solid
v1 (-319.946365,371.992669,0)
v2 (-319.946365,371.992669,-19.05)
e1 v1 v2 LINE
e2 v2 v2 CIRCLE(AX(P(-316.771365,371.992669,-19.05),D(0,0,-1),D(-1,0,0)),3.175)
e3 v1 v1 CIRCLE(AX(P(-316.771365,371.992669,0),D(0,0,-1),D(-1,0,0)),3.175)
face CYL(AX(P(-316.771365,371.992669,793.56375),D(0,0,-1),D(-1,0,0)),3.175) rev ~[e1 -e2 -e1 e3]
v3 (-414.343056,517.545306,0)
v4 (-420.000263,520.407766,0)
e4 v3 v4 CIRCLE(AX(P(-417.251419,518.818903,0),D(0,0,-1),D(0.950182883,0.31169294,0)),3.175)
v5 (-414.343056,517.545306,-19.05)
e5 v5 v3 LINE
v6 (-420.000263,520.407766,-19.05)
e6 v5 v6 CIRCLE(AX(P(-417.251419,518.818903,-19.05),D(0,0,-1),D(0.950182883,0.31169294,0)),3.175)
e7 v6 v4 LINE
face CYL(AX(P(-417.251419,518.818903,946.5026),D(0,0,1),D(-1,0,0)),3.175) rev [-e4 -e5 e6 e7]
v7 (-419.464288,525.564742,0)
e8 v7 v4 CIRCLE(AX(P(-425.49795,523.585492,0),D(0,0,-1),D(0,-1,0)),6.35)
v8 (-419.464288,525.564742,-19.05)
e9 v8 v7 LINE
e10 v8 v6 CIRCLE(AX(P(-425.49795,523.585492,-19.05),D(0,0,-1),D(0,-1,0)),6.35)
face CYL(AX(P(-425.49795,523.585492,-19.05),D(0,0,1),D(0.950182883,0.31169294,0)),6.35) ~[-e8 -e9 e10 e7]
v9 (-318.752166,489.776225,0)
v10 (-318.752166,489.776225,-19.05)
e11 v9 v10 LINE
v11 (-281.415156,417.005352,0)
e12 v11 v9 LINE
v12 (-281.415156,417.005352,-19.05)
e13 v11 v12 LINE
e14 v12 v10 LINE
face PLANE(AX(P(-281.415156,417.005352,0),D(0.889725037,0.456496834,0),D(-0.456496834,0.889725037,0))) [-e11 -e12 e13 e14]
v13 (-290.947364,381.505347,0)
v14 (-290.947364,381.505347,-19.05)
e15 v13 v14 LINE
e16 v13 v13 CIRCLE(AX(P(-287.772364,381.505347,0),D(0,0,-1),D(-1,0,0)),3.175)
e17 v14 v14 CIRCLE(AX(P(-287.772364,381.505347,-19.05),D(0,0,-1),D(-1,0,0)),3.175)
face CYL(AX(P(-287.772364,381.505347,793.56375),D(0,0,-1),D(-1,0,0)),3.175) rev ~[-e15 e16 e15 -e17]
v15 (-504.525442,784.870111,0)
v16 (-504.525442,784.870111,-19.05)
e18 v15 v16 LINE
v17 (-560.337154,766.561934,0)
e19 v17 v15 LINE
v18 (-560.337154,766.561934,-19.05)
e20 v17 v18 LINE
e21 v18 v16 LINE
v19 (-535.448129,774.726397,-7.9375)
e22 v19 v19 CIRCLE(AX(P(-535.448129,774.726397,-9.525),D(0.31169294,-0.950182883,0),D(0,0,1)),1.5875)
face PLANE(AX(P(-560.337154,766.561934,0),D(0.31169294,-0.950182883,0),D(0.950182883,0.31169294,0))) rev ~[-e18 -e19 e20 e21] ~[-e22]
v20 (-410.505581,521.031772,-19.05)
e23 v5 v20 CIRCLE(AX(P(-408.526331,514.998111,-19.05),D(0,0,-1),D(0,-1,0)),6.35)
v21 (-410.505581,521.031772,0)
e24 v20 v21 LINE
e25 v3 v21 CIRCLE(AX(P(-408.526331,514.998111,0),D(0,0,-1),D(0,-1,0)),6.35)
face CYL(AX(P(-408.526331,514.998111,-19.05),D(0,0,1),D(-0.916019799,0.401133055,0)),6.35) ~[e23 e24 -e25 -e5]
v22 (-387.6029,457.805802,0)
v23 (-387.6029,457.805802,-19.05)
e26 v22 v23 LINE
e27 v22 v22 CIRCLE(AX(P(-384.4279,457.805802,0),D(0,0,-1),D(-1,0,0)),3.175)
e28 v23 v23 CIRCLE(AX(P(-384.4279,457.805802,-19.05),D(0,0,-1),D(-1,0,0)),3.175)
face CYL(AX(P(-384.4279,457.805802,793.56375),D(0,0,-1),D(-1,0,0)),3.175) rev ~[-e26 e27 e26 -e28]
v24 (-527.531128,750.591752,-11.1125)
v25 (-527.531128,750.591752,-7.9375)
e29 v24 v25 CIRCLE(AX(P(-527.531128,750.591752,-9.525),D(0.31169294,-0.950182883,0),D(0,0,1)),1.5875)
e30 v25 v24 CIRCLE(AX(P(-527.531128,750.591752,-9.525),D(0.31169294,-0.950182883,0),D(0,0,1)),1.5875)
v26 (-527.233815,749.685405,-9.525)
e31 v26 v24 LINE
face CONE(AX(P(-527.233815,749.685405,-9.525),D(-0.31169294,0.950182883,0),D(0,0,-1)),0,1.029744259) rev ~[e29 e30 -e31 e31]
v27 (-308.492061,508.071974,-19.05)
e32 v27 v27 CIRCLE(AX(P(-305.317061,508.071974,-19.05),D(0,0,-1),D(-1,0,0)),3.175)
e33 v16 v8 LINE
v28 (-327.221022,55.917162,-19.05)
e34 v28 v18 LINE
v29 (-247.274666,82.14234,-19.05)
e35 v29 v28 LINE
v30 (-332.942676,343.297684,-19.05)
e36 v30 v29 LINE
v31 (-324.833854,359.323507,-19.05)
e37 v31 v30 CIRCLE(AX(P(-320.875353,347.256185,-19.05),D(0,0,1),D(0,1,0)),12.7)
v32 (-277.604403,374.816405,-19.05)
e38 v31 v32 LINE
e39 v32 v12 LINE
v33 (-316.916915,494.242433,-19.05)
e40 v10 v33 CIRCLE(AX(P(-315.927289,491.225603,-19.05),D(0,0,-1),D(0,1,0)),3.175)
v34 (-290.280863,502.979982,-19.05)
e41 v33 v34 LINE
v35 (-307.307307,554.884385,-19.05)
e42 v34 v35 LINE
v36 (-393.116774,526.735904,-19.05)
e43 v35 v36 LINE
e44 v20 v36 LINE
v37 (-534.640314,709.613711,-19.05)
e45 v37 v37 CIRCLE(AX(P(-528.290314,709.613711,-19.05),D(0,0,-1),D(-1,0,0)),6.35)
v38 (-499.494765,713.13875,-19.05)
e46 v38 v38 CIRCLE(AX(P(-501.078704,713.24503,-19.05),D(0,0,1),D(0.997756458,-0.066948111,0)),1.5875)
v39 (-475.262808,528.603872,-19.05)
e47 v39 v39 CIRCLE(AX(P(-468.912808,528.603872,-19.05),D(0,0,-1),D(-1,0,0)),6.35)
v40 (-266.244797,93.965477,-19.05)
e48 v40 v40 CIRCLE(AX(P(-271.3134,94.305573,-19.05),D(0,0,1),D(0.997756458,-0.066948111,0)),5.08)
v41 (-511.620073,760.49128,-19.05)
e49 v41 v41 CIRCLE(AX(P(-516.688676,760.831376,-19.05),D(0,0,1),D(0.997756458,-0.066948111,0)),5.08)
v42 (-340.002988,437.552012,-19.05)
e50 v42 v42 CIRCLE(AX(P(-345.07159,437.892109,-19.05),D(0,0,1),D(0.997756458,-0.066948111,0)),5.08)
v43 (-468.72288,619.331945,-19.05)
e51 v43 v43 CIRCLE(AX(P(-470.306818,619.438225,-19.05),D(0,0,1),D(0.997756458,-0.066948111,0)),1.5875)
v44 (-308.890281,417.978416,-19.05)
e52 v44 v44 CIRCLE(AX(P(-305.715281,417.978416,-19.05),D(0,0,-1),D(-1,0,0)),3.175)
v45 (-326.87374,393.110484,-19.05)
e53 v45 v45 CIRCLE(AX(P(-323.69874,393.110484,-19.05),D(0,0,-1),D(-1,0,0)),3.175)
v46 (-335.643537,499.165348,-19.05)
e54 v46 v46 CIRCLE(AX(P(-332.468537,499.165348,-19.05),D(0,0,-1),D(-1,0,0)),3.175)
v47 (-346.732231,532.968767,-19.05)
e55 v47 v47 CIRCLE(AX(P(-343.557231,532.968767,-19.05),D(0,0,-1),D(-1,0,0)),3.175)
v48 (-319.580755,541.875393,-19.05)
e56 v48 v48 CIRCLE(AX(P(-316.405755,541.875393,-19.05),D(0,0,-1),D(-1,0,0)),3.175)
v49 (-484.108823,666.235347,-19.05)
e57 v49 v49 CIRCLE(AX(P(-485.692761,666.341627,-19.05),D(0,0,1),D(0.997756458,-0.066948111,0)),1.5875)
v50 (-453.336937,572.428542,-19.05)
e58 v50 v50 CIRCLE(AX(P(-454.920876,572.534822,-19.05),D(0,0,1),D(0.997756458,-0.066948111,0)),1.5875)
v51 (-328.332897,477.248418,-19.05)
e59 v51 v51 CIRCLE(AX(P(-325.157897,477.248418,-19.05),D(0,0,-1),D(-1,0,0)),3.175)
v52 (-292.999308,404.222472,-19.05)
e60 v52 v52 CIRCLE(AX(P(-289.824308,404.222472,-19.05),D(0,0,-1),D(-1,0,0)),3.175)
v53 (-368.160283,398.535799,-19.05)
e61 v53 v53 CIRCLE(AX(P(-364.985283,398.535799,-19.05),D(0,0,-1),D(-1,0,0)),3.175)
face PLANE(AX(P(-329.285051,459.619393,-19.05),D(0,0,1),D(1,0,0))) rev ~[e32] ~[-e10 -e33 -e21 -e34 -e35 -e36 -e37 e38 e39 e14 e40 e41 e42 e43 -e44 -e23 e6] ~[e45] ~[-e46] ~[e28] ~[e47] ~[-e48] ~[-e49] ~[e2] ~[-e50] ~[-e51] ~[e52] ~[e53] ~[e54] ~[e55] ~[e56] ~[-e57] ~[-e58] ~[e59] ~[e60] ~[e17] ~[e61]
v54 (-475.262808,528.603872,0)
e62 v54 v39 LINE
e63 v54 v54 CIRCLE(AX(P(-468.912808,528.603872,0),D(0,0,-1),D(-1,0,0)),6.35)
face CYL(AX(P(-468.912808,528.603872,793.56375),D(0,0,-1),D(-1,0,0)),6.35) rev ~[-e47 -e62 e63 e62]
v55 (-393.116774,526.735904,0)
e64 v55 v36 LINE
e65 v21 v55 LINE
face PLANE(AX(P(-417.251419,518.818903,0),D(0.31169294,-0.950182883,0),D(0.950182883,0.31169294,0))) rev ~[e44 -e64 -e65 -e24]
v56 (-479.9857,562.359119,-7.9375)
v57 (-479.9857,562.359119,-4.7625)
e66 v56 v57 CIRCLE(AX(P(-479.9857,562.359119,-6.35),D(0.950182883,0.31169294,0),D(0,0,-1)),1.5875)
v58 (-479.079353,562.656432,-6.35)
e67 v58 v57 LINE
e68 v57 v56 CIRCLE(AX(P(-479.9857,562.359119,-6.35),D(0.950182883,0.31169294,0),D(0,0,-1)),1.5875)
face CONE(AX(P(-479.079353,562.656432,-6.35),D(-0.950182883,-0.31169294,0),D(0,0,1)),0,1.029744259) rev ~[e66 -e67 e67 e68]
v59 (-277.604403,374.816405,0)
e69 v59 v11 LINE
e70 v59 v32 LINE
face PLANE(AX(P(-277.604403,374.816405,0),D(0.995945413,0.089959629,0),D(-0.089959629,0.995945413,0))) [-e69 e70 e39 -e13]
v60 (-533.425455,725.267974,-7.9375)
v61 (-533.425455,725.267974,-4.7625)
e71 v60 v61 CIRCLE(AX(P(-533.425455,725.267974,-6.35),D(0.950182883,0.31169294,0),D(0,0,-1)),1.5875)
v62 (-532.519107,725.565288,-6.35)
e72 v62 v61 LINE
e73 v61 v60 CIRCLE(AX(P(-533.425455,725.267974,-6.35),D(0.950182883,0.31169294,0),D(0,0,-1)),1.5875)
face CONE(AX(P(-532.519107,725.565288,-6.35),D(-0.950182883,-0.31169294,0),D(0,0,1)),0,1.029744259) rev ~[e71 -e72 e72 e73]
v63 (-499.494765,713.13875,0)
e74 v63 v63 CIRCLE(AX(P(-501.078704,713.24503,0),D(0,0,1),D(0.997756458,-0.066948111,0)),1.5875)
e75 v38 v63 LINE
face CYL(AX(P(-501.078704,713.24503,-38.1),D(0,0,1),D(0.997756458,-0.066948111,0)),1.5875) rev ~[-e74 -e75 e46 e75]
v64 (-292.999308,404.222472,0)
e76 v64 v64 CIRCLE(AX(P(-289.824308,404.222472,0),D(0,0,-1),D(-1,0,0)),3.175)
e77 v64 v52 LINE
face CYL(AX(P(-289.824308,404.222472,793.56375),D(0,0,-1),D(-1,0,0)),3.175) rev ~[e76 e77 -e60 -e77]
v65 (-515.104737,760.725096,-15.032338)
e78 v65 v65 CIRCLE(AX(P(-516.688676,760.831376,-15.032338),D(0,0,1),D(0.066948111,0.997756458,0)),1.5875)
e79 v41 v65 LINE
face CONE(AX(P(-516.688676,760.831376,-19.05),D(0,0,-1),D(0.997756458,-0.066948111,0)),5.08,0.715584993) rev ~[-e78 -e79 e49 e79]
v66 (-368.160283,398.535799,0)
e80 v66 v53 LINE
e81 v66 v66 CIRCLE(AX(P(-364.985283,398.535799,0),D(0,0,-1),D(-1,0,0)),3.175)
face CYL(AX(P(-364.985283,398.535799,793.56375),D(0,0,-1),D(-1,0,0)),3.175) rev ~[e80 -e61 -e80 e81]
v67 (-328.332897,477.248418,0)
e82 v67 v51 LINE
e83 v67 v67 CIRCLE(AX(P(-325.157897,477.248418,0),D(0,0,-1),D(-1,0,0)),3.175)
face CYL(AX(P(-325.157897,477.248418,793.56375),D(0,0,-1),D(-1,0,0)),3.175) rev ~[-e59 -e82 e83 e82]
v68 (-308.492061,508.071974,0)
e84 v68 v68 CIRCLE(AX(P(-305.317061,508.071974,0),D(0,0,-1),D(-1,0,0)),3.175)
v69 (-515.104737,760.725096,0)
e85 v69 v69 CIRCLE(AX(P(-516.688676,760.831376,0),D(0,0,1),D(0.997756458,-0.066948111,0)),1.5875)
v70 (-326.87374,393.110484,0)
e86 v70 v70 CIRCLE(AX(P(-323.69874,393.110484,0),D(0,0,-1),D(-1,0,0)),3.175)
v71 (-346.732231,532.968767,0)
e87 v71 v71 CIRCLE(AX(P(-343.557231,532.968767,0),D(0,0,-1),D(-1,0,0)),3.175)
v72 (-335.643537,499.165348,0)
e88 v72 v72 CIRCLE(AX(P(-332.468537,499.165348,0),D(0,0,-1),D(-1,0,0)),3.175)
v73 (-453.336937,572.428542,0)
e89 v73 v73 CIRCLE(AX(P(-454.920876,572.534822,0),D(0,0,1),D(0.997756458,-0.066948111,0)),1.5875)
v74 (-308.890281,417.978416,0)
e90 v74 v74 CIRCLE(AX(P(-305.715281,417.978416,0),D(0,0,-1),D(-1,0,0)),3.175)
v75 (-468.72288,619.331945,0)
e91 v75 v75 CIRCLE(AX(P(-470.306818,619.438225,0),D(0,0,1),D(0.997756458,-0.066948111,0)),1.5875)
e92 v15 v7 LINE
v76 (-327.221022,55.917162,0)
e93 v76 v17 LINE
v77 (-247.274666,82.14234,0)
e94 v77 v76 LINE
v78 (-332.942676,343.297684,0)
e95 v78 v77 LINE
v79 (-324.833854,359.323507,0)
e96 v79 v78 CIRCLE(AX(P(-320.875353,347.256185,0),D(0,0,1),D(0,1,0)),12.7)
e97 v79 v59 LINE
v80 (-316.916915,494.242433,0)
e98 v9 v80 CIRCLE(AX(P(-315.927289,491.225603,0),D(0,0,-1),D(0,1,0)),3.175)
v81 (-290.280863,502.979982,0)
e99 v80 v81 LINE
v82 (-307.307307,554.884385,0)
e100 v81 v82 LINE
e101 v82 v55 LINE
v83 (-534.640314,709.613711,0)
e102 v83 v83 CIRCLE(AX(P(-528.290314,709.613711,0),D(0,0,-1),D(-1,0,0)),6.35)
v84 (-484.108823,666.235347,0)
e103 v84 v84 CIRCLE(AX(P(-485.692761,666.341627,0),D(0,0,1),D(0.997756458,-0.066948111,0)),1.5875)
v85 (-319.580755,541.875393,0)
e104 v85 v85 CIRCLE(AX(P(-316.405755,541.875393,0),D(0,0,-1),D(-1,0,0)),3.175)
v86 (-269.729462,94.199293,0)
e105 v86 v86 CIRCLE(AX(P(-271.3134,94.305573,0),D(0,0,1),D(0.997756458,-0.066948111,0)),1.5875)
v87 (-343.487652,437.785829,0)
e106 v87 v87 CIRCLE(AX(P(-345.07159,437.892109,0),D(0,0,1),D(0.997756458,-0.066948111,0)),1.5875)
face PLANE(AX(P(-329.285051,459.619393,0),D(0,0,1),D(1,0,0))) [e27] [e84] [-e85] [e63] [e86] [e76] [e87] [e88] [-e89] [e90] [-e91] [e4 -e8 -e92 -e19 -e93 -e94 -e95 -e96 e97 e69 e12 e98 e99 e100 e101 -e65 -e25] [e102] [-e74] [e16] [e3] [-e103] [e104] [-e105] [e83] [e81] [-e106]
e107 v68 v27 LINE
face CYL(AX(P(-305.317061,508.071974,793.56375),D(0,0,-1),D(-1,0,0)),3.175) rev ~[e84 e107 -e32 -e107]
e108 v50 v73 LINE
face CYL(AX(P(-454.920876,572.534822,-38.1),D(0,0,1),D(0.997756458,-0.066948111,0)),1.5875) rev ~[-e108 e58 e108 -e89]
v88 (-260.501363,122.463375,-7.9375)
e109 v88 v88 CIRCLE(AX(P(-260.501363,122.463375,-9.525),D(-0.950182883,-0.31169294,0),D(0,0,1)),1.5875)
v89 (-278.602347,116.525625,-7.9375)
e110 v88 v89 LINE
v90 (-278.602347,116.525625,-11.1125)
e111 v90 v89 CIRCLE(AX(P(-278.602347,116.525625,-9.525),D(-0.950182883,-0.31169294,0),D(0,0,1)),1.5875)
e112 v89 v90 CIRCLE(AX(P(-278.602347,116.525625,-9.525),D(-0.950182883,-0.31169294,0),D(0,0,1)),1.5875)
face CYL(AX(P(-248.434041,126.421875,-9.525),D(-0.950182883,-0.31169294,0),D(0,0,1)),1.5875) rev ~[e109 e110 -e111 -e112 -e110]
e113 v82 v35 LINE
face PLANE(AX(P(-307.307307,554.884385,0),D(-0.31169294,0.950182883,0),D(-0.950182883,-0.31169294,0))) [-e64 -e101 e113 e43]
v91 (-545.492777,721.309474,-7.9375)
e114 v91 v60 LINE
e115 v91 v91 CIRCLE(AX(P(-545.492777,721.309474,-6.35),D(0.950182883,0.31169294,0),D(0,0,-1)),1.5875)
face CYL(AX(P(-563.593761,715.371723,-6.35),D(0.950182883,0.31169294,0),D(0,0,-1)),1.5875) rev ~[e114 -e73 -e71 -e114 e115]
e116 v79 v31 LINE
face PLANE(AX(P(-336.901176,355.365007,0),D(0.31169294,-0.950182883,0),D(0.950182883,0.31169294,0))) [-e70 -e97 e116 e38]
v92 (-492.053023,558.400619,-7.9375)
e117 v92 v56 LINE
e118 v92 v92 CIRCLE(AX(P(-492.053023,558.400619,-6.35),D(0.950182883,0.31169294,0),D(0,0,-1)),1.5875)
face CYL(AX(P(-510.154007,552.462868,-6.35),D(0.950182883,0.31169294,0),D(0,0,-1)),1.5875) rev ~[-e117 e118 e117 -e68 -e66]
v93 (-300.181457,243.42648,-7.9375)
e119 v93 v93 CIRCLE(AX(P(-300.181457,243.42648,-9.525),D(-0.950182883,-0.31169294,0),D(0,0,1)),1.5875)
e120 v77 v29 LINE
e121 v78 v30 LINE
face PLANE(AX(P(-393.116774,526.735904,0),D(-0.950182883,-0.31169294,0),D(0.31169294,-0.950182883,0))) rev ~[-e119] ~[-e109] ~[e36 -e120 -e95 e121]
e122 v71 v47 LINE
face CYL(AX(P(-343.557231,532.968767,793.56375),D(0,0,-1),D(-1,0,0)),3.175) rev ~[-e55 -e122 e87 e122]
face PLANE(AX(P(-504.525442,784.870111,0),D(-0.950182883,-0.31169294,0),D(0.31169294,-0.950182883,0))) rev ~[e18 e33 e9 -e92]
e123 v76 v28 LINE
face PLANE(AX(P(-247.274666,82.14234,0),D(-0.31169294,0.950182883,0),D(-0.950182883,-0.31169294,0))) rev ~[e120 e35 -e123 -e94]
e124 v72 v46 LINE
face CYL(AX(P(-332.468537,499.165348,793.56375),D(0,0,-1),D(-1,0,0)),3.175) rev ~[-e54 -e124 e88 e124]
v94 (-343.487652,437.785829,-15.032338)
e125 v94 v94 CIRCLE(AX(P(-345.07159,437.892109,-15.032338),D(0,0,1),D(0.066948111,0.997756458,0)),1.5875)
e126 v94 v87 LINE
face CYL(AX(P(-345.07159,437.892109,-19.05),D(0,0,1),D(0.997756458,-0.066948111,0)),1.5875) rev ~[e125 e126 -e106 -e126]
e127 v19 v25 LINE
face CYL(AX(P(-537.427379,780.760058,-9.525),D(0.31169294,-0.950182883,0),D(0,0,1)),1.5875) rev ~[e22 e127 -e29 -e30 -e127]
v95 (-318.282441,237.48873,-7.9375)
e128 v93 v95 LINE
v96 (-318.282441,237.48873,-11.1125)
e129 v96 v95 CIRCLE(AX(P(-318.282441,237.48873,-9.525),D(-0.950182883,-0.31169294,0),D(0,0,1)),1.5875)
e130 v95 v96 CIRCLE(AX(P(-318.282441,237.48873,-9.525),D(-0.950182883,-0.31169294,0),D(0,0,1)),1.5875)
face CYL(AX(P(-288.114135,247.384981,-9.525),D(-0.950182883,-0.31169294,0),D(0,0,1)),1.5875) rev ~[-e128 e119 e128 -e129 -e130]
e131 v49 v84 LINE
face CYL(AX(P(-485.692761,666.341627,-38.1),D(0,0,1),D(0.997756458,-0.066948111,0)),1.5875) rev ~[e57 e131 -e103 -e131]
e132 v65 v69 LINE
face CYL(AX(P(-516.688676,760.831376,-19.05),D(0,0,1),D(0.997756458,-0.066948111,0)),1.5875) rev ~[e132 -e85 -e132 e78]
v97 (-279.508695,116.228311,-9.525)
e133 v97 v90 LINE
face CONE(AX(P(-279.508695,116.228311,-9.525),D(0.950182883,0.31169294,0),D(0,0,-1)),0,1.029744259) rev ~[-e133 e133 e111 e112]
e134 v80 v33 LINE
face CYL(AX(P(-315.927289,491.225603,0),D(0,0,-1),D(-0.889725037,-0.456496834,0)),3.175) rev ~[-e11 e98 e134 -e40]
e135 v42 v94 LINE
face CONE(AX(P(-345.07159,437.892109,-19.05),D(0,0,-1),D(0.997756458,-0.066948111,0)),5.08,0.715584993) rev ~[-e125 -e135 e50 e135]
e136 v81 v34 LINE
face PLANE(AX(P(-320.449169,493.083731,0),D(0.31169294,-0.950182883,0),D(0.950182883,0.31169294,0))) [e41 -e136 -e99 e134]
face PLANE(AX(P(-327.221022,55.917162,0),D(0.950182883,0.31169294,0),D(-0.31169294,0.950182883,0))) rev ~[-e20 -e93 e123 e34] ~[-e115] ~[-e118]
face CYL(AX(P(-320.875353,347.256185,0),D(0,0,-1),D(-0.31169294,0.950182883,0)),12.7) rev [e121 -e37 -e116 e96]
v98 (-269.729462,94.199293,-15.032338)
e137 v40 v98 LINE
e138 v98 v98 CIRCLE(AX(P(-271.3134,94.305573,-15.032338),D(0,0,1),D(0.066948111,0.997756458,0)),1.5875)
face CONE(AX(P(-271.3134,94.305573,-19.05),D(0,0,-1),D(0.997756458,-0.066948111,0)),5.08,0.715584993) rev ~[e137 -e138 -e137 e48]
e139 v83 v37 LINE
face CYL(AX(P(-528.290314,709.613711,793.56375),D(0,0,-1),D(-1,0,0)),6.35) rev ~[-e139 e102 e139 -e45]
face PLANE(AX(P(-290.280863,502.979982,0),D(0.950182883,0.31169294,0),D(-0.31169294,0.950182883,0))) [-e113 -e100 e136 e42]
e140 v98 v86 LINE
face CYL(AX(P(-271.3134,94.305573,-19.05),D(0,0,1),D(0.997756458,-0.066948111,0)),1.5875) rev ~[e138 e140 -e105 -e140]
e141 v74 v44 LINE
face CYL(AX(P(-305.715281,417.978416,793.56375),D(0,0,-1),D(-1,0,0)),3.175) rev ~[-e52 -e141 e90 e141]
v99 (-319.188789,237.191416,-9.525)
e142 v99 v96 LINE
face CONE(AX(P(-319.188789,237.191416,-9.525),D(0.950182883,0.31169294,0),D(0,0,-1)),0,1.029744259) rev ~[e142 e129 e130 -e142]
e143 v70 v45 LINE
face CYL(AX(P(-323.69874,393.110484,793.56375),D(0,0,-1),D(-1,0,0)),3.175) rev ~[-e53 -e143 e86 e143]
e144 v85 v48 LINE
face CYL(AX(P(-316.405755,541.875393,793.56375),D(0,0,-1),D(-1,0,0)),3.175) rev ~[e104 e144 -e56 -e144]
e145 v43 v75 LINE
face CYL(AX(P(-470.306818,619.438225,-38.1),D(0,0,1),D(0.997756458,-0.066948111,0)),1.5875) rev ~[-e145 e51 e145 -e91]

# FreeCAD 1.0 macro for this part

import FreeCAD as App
import Part
import Sketcher

V = App.Vector
Q = App.Units.Quantity


def edges_at(feature, points):
    """Names of the edges that pass closest to the given points."""
    edges = feature.Shape.Edges
    near = lambda p: min(range(len(edges)), key=lambda i: edges[i].distToShape(Part.Vertex(*p))[0])
    return sorted({f"Edge{near(p) + 1}" for p in points})

doc = App.newDocument("Part")
body = doc.addObject("PartDesign::Body", "Body")

# Sketch on XY plane
sketch1 = doc.addObject("Sketcher::SketchObject", "Sketch")
body.addObject(sketch1)
sketch1.AttachmentSupport = (doc.XY_Plane, [""])
sketch1.MapMode = "FlatFace"
sketch1.addGeometry([
    Part.LineSegment(V(-327, 56, 0), V(-247, 82, 0)),  # 0
    Part.LineSegment(V(-247, 82, 0), V(-393, 527, 0)),  # 1
    Part.LineSegment(V(-393, 527, 0), V(-417, 519, 0)),  # 2
    Part.LineSegment(V(-417, 519, 0), V(-505, 785, 0)),  # 3
    Part.LineSegment(V(-505, 785, 0), V(-560, 767, 0)),  # 4
    Part.LineSegment(V(-560, 767, 0), V(-327, 56, 0)),  # 5
], False)
sketch1.addConstraint([
    Sketcher.Constraint("Coincident", 0, 2, 1, 1),
    Sketcher.Constraint("Coincident", 1, 2, 2, 1),
    Sketcher.Constraint("Coincident", 2, 2, 3, 1),
    Sketcher.Constraint("Coincident", 3, 2, 4, 1),
    Sketcher.Constraint("Coincident", 4, 2, 5, 1),
    Sketcher.Constraint("Coincident", 5, 2, 0, 1),
    Sketcher.Constraint("Perpendicular", 0, 1),
    Sketcher.Constraint("Perpendicular", 1, 2),
    Sketcher.Constraint("Perpendicular", 2, 3),
    Sketcher.Constraint("Perpendicular", 3, 4),
    Sketcher.Constraint("Perpendicular", 4, 5),
    Sketcher.Constraint("Distance", 2, Q("1 in")),
    Sketcher.Constraint("Distance", 3, 280.0),
    Sketcher.Constraint("DistanceY", 2, 2, 1, 2, 7.917001),
    Sketcher.Constraint("Distance", 1, 467.90315),
    Sketcher.Constraint("DistanceY", -1, 1, 0, 2, 82.14234),
    Sketcher.Constraint("DistanceX", 2, 2, -1, 1, 417.251419),
    Sketcher.Constraint("DistanceX", 5, 2, -1, 1, 327.221022),
])
pad1 = doc.addObject("PartDesign::Pad", "Pad")
body.addObject(pad1)
pad1.Profile = sketch1
pad1.Length = Q("0.75 in")
pad1.Reversed = True

# Sketch on XY plane
sketch2 = doc.addObject("Sketcher::SketchObject", "Sketch001")
body.addObject(sketch2)
sketch2.AttachmentSupport = (doc.XY_Plane, [""])
sketch2.MapMode = "FlatFace"
sketch2.addGeometry([
    Part.LineSegment(V(-393, 527, 0), V(-337, 355, 0)),  # 0
    Part.LineSegment(V(-337, 355, 0), V(-278, 375, 0)),  # 1
    Part.LineSegment(V(-278, 375, 0), V(-281, 417, 0)),  # 2
    Part.LineSegment(V(-281, 417, 0), V(-320, 493, 0)),  # 3
    Part.LineSegment(V(-320, 493, 0), V(-290, 503, 0)),  # 4
    Part.LineSegment(V(-290, 503, 0), V(-307, 555, 0)),  # 5
    Part.LineSegment(V(-307, 555, 0), V(-393, 527, 0)),  # 6
], False)
sketch2.addConstraint([
    Sketcher.Constraint("Coincident", 0, 2, 1, 1),
    Sketcher.Constraint("Coincident", 1, 2, 2, 1),
    Sketcher.Constraint("Coincident", 2, 2, 3, 1),
    Sketcher.Constraint("Coincident", 3, 2, 4, 1),
    Sketcher.Constraint("Coincident", 4, 2, 5, 1),
    Sketcher.Constraint("Coincident", 5, 2, 6, 1),
    Sketcher.Constraint("Coincident", 6, 2, 0, 1),
    Sketcher.Constraint("Perpendicular", 0, 1),
    Sketcher.Constraint("Parallel", 1, 4),
    Sketcher.Constraint("Perpendicular", 4, 5),
    Sketcher.Constraint("Perpendicular", 5, 6),
    Sketcher.Constraint("Distance", 4, Q("1.25 in")),
    Sketcher.Constraint("Distance", 0, 180.355698),
    Sketcher.Constraint("Distance", 5, 54.625698),
    Sketcher.Constraint("DistanceY", 0, 2, 1, 2, 19.451398),
    Sketcher.Constraint("Distance", 6, 90.308369),
    Sketcher.Constraint("DistanceX", 3, 2, -1, 1, 320.449169),
    Sketcher.Constraint("DistanceY", -1, 1, 3, 2, 493.083731),
    Sketcher.Constraint("DistanceY", -1, 1, 4, 2, 502.979982),
    Sketcher.Constraint("DistanceX", 0, 2, 2, 2, 55.48602),
    Sketcher.Constraint("DistanceY", 2, 2, 3, 2, 76.078379),
])
pad2 = doc.addObject("PartDesign::Pad", "Pad001")
body.addObject(pad2)
pad2.Profile = sketch2
pad2.Length = Q("0.75 in")
pad2.Reversed = True
doc.recompute()

fillet = doc.addObject("PartDesign::Fillet", "Fillet")
body.addObject(fillet)
fillet.Base = (pad2, edges_at(pad2, [(-320.449, 493.084, -9.525)]))
fillet.Radius = Q("0.125 in")
doc.recompute()

fillet2 = doc.addObject("PartDesign::Fillet", "Fillet001")
body.addObject(fillet2)
fillet2.Base = (fillet, edges_at(fillet, [(-336.901, 355.365, -9.525)]))
fillet2.Radius = Q("0.5 in")

# Sketch on XY plane
sketch3 = doc.addObject("Sketcher::SketchObject", "Sketch002")
body.addObject(sketch3)
sketch3.AttachmentSupport = (doc.XY_Plane, [""])
sketch3.MapMode = "FlatFace"
sketch3.AttachmentOffset = App.Placement(V(0, 0, -0.75 * 25.4), App.Rotation())
sketch3.addGeometry(Part.Circle(V(-417.3, 518.8, 0), V(0, 0, 1), 3.2), False)
sketch3.addConstraint([
    Sketcher.Constraint("Diameter", 0, Q("0.25 in")),
    Sketcher.Constraint("DistanceX", 0, 3, -1, 1, 417.251419),
    Sketcher.Constraint("DistanceY", -1, 1, 0, 3, 518.818903),
])
pocket1 = doc.addObject("PartDesign::Pocket", "Pocket")
body.addObject(pocket1)
pocket1.Profile = sketch3
pocket1.Type = "ThroughAll"
pocket1.Midplane = True
doc.recompute()

fillet3 = doc.addObject("PartDesign::Fillet", "Fillet002")
body.addObject(fillet3)
fillet3.Base = (pocket1, edges_at(pocket1, [(-418.241, 521.836, -9.525), (-414.235, 519.809, -9.525)]))
fillet3.Radius = Q("0.25 in")

# Sketch on XY plane
sketch4 = doc.addObject("Sketcher::SketchObject", "Sketch003")
body.addObject(sketch4)
sketch4.AttachmentSupport = (doc.XY_Plane, [""])
sketch4.MapMode = "FlatFace"
sketch4.addGeometry([
    Part.Circle(V(-563.5, 698.5, 0), V(0, 0, 1), 3.2),  # 0
    Part.Circle(V(-504.1, 517.5, 0), V(0, 0, 1), 3.2),  # 1
    Part.Circle(V(-343.6, 533, 0), V(0, 0, 1), 3.2),  # 2
    Part.Circle(V(-316.4, 541.9, 0), V(0, 0, 1), 3.2),  # 3
    Part.Circle(V(-305.3, 508.1, 0), V(0, 0, 1), 3.2),  # 4
    Part.Circle(V(-332.5, 499.2, 0), V(0, 0, 1), 3.2),  # 5
    Part.Circle(V(-384.4, 457.8, 0), V(0, 0, 1), 3.2),  # 6
    Part.Circle(V(-325.2, 477.2, 0), V(0, 0, 1), 3.2),  # 7
    Part.Circle(V(-305.7, 418, 0), V(0, 0, 1), 3.2),  # 8
    Part.Circle(V(-365, 398.5, 0), V(0, 0, 1), 3.2),  # 9
    Part.Circle(V(-323.7, 393.1, 0), V(0, 0, 1), 3.2),  # 10
    Part.Circle(V(-289.8, 404.2, 0), V(0, 0, 1), 3.2),  # 11
    Part.Circle(V(-287.8, 381.5, 0), V(0, 0, 1), 3.2),  # 12
    Part.Circle(V(-316.8, 372, 0), V(0, 0, 1), 3.2),  # 13
], False)
sketch4.addConstraint([
    Sketcher.Constraint("Equal", 0, 1),
    Sketcher.Constraint("Equal", 1, 2),
    Sketcher.Constraint("Equal", 2, 3),
    Sketcher.Constraint("Equal", 3, 4),
    Sketcher.Constraint("Equal", 4, 5),
    Sketcher.Constraint("Equal", 5, 6),
    Sketcher.Constraint("Equal", 6, 7),
    Sketcher.Constraint("Equal", 7, 8),
    Sketcher.Constraint("Equal", 8, 9),
    Sketcher.Constraint("Equal", 9, 10),
    Sketcher.Constraint("Equal", 10, 11),
    Sketcher.Constraint("Equal", 11, 12),
    Sketcher.Constraint("Equal", 12, 13),
    Sketcher.Constraint("Diameter", 0, Q("0.25 in")),
    Sketcher.Constraint("DistanceX", 6, 3, 4, 3, Q("3.1146 in")),
    Sketcher.Constraint("DistanceX", 6, 3, -1, 1, 384.4279),
    Sketcher.Constraint("DistanceY", -1, 1, 6, 3, 457.805802),
    Sketcher.Constraint("DistanceY", -1, 1, 9, 3, 398.535799),
    Sketcher.Constraint("DistanceX", 13, 3, 12, 3, 28.999),
    Sketcher.Constraint("DistanceX", 0, 3, -1, 1, 563.450339),
    Sketcher.Constraint("DistanceX", 2, 3, -1, 1, 343.557231),
    Sketcher.Constraint("DistanceY", -1, 1, 7, 3, 477.248418),
    Sketcher.Constraint("DistanceX", 8, 3, -1, 1, 305.715281),
    Sketcher.Constraint("DistanceX", 10, 3, -1, 1, 323.69874),
    Sketcher.Constraint("DistanceX", 11, 3, -1, 1, 289.824308),
    Sketcher.Constraint("DistanceY", -1, 1, 13, 3, 371.992669),
    Sketcher.Constraint("DistanceY", 1, 3, 0, 3, 181.009839),
    Sketcher.Constraint("DistanceX", 1, 3, 3, 3, 187.66708),
    Sketcher.Constraint("DistanceY", 1, 3, 3, 3, 24.34055),
    Sketcher.Constraint("DistanceY", 4, 3, 3, 3, 33.803419),
    Sketcher.Constraint("DistanceY", 5, 3, 2, 3, 33.803419),
    Sketcher.Constraint("DistanceX", 5, 3, 3, 3, 16.062782),
    Sketcher.Constraint("DistanceY", 6, 3, 4, 3, 50.266172),
    Sketcher.Constraint("DistanceX", 5, 3, 7, 3, 7.310639),
    Sketcher.Constraint("DistanceY", 7, 3, 5, 3, 21.91693),
    Sketcher.Constraint("DistanceY", 8, 3, 2, 3, 114.990351),
    Sketcher.Constraint("DistanceY", 10, 3, 8, 3, 24.867932),
    Sketcher.Constraint("DistanceY", 10, 3, 11, 3, 11.111989),
    Sketcher.Constraint("DistanceX", 7, 3, 11, 3, 35.333589),
    Sketcher.Constraint("DistanceY", 12, 3, 8, 3, 36.473069),
    Sketcher.Constraint("DistanceX", 9, 3, 12, 3, 77.212919),
    Sketcher.Constraint("DistanceX", 9, 3, -1, 1, 364.985283),
])
doc.recompute()
hole = doc.addObject("PartDesign::Hole", "Hole")
body.addObject(hole)
hole.Profile = sketch4
hole.ThreadType = "None"
hole.Diameter = Q("0.25 in")
hole.DepthType = "ThroughAll"

# Sketch on XY plane
sketch5 = doc.addObject("Sketcher::SketchObject", "Sketch004")
body.addObject(sketch5)
sketch5.AttachmentSupport = (doc.XY_Plane, [""])
sketch5.MapMode = "FlatFace"
sketch5.AttachmentOffset = App.Placement(V(0, 0, -0.75 * 25.4), App.Rotation())
sketch5.addGeometry([
    Part.Circle(V(-271.3, 94.3, 0), V(0, 0, 1), 1.6),  # 0
    Part.Circle(V(-369.4, 62.1, 0), V(0, 0, 1), 1.6),  # 1
    Part.Circle(V(-516.7, 760.8, 0), V(0, 0, 1), 1.6),  # 2
    Part.Circle(V(-590.6, 736.6, 0), V(0, 0, 1), 1.6),  # 3
    Part.Circle(V(-472.3, 396.2, 0), V(0, 0, 1), 1.6),  # 4
    Part.Circle(V(-345.1, 437.9, 0), V(0, 0, 1), 1.6),  # 5
], False)
sketch5.addConstraint([
    Sketcher.Constraint("Equal", 0, 1),
    Sketcher.Constraint("Equal", 1, 2),
    Sketcher.Constraint("Equal", 2, 3),
    Sketcher.Constraint("Equal", 3, 4),
    Sketcher.Constraint("Equal", 4, 5),
    Sketcher.Constraint("Diameter", 0, Q("0.125 in")),
    Sketcher.Constraint("DistanceX", 0, 3, -1, 1, 271.3134),
    Sketcher.Constraint("DistanceX", 1, 3, -1, 1, 369.36074),
    Sketcher.Constraint("DistanceX", 3, 3, -1, 1, 590.601371),
    Sketcher.Constraint("DistanceY", -1, 1, 3, 3, 736.585448),
    Sketcher.Constraint("DistanceX", 4, 3, -1, 1, 472.251279),
    Sketcher.Constraint("DistanceY", -1, 1, 4, 3, 396.17276),
    Sketcher.Constraint("DistanceX", 5, 3, -1, 1, 345.07159),
    Sketcher.Constraint("DistanceY", -1, 1, 5, 3, 437.892108),
    Sketcher.Constraint("DistanceY", 1, 3, 0, 3, 32.162928),
    Sketcher.Constraint("DistanceY", 1, 3, 2, 3, 698.688731),
    Sketcher.Constraint("DistanceY", -1, 1, 0, 3, 94.305573),
    Sketcher.Constraint("DistanceX", 2, 3, -1, 1, 516.688676),
])
doc.recompute()
hole2 = doc.addObject("PartDesign::Hole", "Hole001")
body.addObject(hole2)
hole2.Profile = sketch5
hole2.ThreadType = "None"
hole2.Diameter = Q("0.125 in")
hole2.DepthType = "Dimension"
hole2.Depth = Q("1.5 in")
hole2.DrillPoint = "Angled"
hole2.DrillPointAngle = 118
hole2.HoleCutType = "Countersink"
hole2.HoleCutDiameter = Q("0.4 in")
hole2.HoleCutCountersinkAngle = 82
hole2.Reversed = True

# Sketch on XY plane
sketch6 = doc.addObject("Sketcher::SketchObject", "Sketch005")
body.addObject(sketch6)
sketch6.AttachmentSupport = (doc.XY_Plane, [""])
sketch6.MapMode = "FlatFace"
sketch6.AttachmentOffset = App.Placement(V(0, 0, -1.5 * 25.4), App.Rotation())
sketch6.addGeometry([
    Part.Circle(V(-470.3, 619.4, 0), V(0, 0, 1), 1.6),
    Part.Circle(V(-501.1, 713.2, 0), V(0, 0, 1), 1.6),
    Part.Circle(V(-485.7, 666.3, 0), V(0, 0, 1), 1.6),
    Part.Circle(V(-454.9, 572.5, 0), V(0, 0, 1), 1.6),
], False)
sketch6.addConstraint([
    Sketcher.Constraint("Equal", 0, 1),
    Sketcher.Constraint("Equal", 1, 2),
    Sketcher.Constraint("Equal", 2, 3),
    Sketcher.Constraint("Diameter", 0, Q("0.125 in")),
    Sketcher.Constraint("DistanceX", 0, 3, -1, 1, 470.306818),
    Sketcher.Constraint("DistanceY", -1, 1, 1, 3, 713.245029),
    Sketcher.Constraint("DistanceX", 2, 3, -1, 1, 485.692761),
    Sketcher.Constraint("DistanceY", -1, 1, 3, 3, 572.534822),
    Sketcher.Constraint("DistanceX", 1, 3, 3, 3, 46.157828),
    Sketcher.Constraint("DistanceY", -1, 1, 0, 3, 619.438224),
    Sketcher.Constraint("DistanceX", 1, 3, -1, 1, 501.078704),
    Sketcher.Constraint("DistanceY", -1, 1, 2, 3, 666.341627),
])
doc.recompute()
hole3 = doc.addObject("PartDesign::Hole", "Hole002")
body.addObject(hole3)
hole3.Profile = sketch6
hole3.ThreadType = "None"
hole3.Diameter = Q("0.125 in")
hole3.DepthType = "Dimension"
hole3.Depth = Q("2.25 in")
hole3.DrillPoint = "Angled"
hole3.DrillPointAngle = 118
hole3.HoleCutType = "Countersink"
hole3.HoleCutDiameter = Q("0.4 in")
hole3.HoleCutCountersinkAngle = 82
hole3.Reversed = True

# Sketch on an angled plane
sketch7 = doc.addObject("Sketcher::SketchObject", "Sketch006")
body.addObject(sketch7)
sketch7.Placement = App.Placement(V(-186.856283, -61.295341, 0), App.Rotation(V(0, 0, -1), V(-0.31169294, 0.950182883, 0), V(0.950182883, 0.31169294, 0), "ZXY"))
sketch7.addGeometry([
    Part.Circle(V(103, 231.2, 0), V(0, 0, 1), 1.6),  # 0
    Part.Circle(V(103, 95.1, 0), V(0, 0, 1), 1.6),  # 1
    Part.Circle(V(103, -41.1, 0), V(0, 0, 1), 1.6),  # 2
    Part.Circle(V(9.5, 324.9, 0), V(0, 0, 1), 1.6),  # 3
    Part.Circle(V(9.5, 197.6, 0), V(0, 0, 1), 1.6),  # 4
    Part.Circle(V(-9.5, 208.2, 0), V(0, 0, 1), 1.6),  # 5
    Part.Circle(V(-9.5, 314.3, 0), V(0, 0, 1), 1.6),  # 6
    Part.Circle(V(-134.5, 314.3, 0), V(0, 0, 1), 1.6),  # 7
    Part.Circle(V(-134.5, 208.2, 0), V(0, 0, 1), 1.6),  # 8
    Part.Circle(V(-153.6, 197.6, 0), V(0, 0, 1), 1.6),  # 9
    Part.Circle(V(-153.6, 324.9, 0), V(0, 0, 1), 1.6),  # 10
    Part.Circle(V(-247, -41.1, 0), V(0, 0, 1), 1.6),  # 11
    Part.Circle(V(-247, 95.1, 0), V(0, 0, 1), 1.6),  # 12
    Part.Circle(V(-247, 231.2, 0), V(0, 0, 1), 1.6),  # 13
    Part.Circle(V(-154.8, 145.6, 0), V(0, 0, 1), 1.6),  # 14
    Part.Circle(V(-72, 145.6, 0), V(0, 0, 1), 1.6),  # 15
    Part.Circle(V(10.7, 145.6, 0), V(0, 0, 1), 1.6),  # 16
    Part.Circle(V(-72, -78, 0), V(0, 0, 1), 1.6),  # 17
    Part.Circle(V(-154.8, -78, 0), V(0, 0, 1), 1.6),  # 18
    Part.Circle(V(10.7, -78, 0), V(0, 0, 1), 1.6),  # 19
], False)
sketch7.addConstraint([
    Sketcher.Constraint("Equal", 0, 1),
    Sketcher.Constraint("Equal", 1, 2),
    Sketcher.Constraint("Equal", 2, 3),
    Sketcher.Constraint("Equal", 3, 4),
    Sketcher.Constraint("Equal", 4, 5),
    Sketcher.Constraint("Equal", 5, 6),
    Sketcher.Constraint("Equal", 6, 7),
    Sketcher.Constraint("Equal", 7, 8),
    Sketcher.Constraint("Equal", 8, 9),
    Sketcher.Constraint("Equal", 9, 10),
    Sketcher.Constraint("Equal", 10, 11),
    Sketcher.Constraint("Equal", 11, 12),
    Sketcher.Constraint("Equal", 12, 13),
    Sketcher.Constraint("Equal", 13, 14),
    Sketcher.Constraint("Equal", 14, 15),
    Sketcher.Constraint("Equal", 15, 16),
    Sketcher.Constraint("Equal", 16, 17),
    Sketcher.Constraint("Equal", 17, 18),
    Sketcher.Constraint("Equal", 18, 19),
    Sketcher.Constraint("Horizontal", 6, 3, 7, 3),
    Sketcher.Constraint("Horizontal", 5, 3, 8, 3),
    Sketcher.Constraint("Horizontal", 4, 3, 9, 3),
    Sketcher.Constraint("Horizontal", 3, 3, 10, 3),
    Sketcher.Constraint("Horizontal", 2, 3, 11, 3),
    Sketcher.Constraint("Horizontal", 1, 3, 12, 3),
    Sketcher.Constraint("Horizontal", 0, 3, 13, 3),
    Sketcher.Constraint("Horizontal", 14, 3, 15, 3),
    Sketcher.Constraint("Horizontal", 15, 3, 16, 3),
    Sketcher.Constraint("Horizontal", 17, 3, 18, 3),
    Sketcher.Constraint("Horizontal", 18, 3, 19, 3),
    Sketcher.Constraint("Vertical", 0, 3, 1, 3),
    Sketcher.Constraint("Vertical", 1, 3, 2, 3),
    Sketcher.Constraint("Vertical", 3, 3, 4, 3),
    Sketcher.Constraint("Vertical", 5, 3, 6, 3),
    Sketcher.Constraint("Vertical", 7, 3, 8, 3),
    Sketcher.Constraint("Vertical", 9, 3, 10, 3),
    Sketcher.Constraint("Vertical", 11, 3, 12, 3),
    Sketcher.Constraint("Vertical", 12, 3, 13, 3),
    Sketcher.Constraint("Vertical", 15, 3, 17, 3),
    Sketcher.Constraint("Vertical", 14, 3, 18, 3),
    Sketcher.Constraint("Vertical", 16, 3, 19, 3),
    Sketcher.Constraint("Diameter", 0, Q("0.125 in")),
    Sketcher.Constraint("DistanceX", 5, 3, 4, 3, Q("0.75 in")),
    Sketcher.Constraint("DistanceX", 9, 3, 8, 3, Q("0.75 in")),
    Sketcher.Constraint("DistanceX", -1, 1, 3, 3, Q("0.375 in")),
    Sketcher.Constraint("DistanceX", -1, 1, 0, 3, 102.975),
    Sketcher.Constraint("DistanceX", 7, 3, -1, 1, 134.525),
    Sketcher.Constraint("DistanceX", 11, 3, -1, 1, 247.025),
    Sketcher.Constraint("DistanceX", 14, 3, -1, 1, 154.7625),
    Sketcher.Constraint("DistanceX", 15, 3, -1, 1, 72.025),
    Sketcher.Constraint("DistanceX", -1, 1, 16, 3, 10.7125),
    Sketcher.Constraint("DistanceY", 5, 3, 0, 3, 23.007602),
    Sketcher.Constraint("DistanceY", -1, 1, 4, 3, 197.559039),
    Sketcher.Constraint("DistanceY", -1, 1, 6, 3, 314.255359),
    Sketcher.Constraint("DistanceY", 2, 3, 0, 3, 272.247489),
    Sketcher.Constraint("DistanceY", 0, 3, 3, 3, 93.688719),
    Sketcher.Constraint("DistanceY", 4, 3, 0, 3, 33.616358),
    Sketcher.Constraint("DistanceY", 12, 3, 14, 3, 50.547361),
    Sketcher.Constraint("DistanceY", 17, 3, 15, 3, 223.64685),
    Sketcher.Constraint("DistanceY", -1, 1, 1, 3, 95.051652),
])
doc.recompute()
hole4 = doc.addObject("PartDesign::Hole", "Hole003")
body.addObject(hole4)
hole4.Profile = sketch7
hole4.ThreadType = "None"
hole4.Diameter = Q("0.125 in")
hole4.DepthType = "Dimension"
hole4.Depth = Q("1.25 in")
hole4.DrillPoint = "Angled"
hole4.DrillPointAngle = 118
hole4.HoleCutType = "Countersink"
hole4.HoleCutDiameter = Q("0.4 in")
hole4.HoleCutCountersinkAngle = 82

# Sketch on an angled plane
sketch8 = doc.addObject("Sketcher::SketchObject", "Sketch007")
body.addObject(sketch8)
sketch8.Placement = App.Placement(V(-296.970946, -97.41677, 0), App.Rotation(V(0, 0, 1), V(-0.31169294, 0.950182883, 0), V(-0.950182883, -0.31169294, 0), "ZXY"))
sketch8.addGeometry([
    Part.Circle(V(-6.3, 855.4, 0), V(0, 0, 1), 1.6),
    Part.Circle(V(-6.3, 684, 0), V(0, 0, 1), 1.6),
    Part.Circle(V(150.4, 684, 0), V(0, 0, 1), 1.6),
    Part.Circle(V(150.4, 855.4, 0), V(0, 0, 1), 1.6),
], False)
sketch8.addConstraint([
    Sketcher.Constraint("Equal", 0, 1),
    Sketcher.Constraint("Equal", 1, 2),
    Sketcher.Constraint("Equal", 2, 3),
    Sketcher.Constraint("Horizontal", 1, 3, 2, 3),
    Sketcher.Constraint("Horizontal", 0, 3, 3, 3),
    Sketcher.Constraint("Vertical", 0, 3, 1, 3),
    Sketcher.Constraint("Vertical", 2, 3, 3, 3),
    Sketcher.Constraint("Diameter", 0, Q("0.125 in")),
    Sketcher.Constraint("DistanceX", 0, 3, -1, 1, Q("0.25 in")),
    Sketcher.Constraint("DistanceY", 1, 3, 0, 3, Q("6.75 in")),
    Sketcher.Constraint("DistanceX", -1, 1, 2, 3, 150.4),
    Sketcher.Constraint("DistanceY", -1, 1, 0, 3, 855.402163),
])
doc.recompute()
hole5 = doc.addObject("PartDesign::Hole", "Hole004")
body.addObject(hole5)
hole5.Profile = sketch8
hole5.ThreadType = "None"
hole5.Diameter = Q("0.125 in")
hole5.DepthType = "Dimension"
hole5.Depth = Q("1.25 in")
hole5.DrillPoint = "Angled"
hole5.DrillPointAngle = 118
hole5.HoleCutType = "Countersink"
hole5.HoleCutDiameter = Q("0.4 in")
hole5.HoleCutCountersinkAngle = 82

# Sketch on an angled plane
sketch9 = doc.addObject("Sketcher::SketchObject", "Sketch008")
body.addObject(sketch9)
sketch9.Placement = App.Placement(V(-283.446441, 864.074615, 0), App.Rotation(V(0, 0, -1), V(-0.950182883, -0.31169294, 0), V(-0.31169294, 0.950182883, 0), "ZXY"))
sketch9.addGeometry([
    Part.Circle(V(9.5, 267.3, 0), V(0, 0, 1), 1.6),
    Part.Circle(V(-153.6, 267.3, 0), V(0, 0, 1), 1.6),
], False)
sketch9.addConstraint([
    Sketcher.Constraint("Equal", 0, 1),
    Sketcher.Constraint("Horizontal", 0, 3, 1, 3),
    Sketcher.Constraint("Diameter", 0, Q("0.125 in")),
    Sketcher.Constraint("DistanceX", -1, 1, 0, 3, Q("0.375 in")),
    Sketcher.Constraint("DistanceY", -1, 1, 0, 3, Q("10.5234999 in")),
    Sketcher.Constraint("DistanceX", 1, 3, -1, 1, 153.575),
])
doc.recompute()
hole6 = doc.addObject("PartDesign::Hole", "Hole005")
body.addObject(hole6)
hole6.Profile = sketch9
hole6.ThreadType = "None"
hole6.Diameter = Q("0.125 in")
hole6.DepthType = "Dimension"
hole6.Depth = Q("1.25 in")
hole6.DrillPoint = "Angled"
hole6.DrillPointAngle = 118
hole6.HoleCutType = "Countersink"
hole6.HoleCutDiameter = Q("0.4 in")
hole6.HoleCutCountersinkAngle = 82

# Sketch on XY plane
sketch10 = doc.addObject("Sketcher::SketchObject", "Sketch009")
body.addObject(sketch10)
sketch10.AttachmentSupport = (doc.XY_Plane, [""])
sketch10.MapMode = "FlatFace"
sketch10.addGeometry([
    Part.Circle(V(-469, 529, 0), V(0, 0, 1), 6),
    Part.Circle(V(-528, 710, 0), V(0, 0, 1), 6),
], False)
sketch10.addConstraint([
    Sketcher.Constraint("Equal", 0, 1),
    Sketcher.Constraint("Diameter", 0, Q("0.5 in")),
    Sketcher.Constraint("DistanceX", 0, 3, -1, 1, 468.912808),
    Sketcher.Constraint("DistanceY", -1, 1, 1, 3, 709.613711),
    Sketcher.Constraint("DistanceY", 0, 3, 1, 3, 181.009839),
    Sketcher.Constraint("DistanceX", 1, 3, -1, 1, 528.290314),
])
doc.recompute()
hole7 = doc.addObject("PartDesign::Hole", "Hole006")
body.addObject(hole7)
hole7.Profile = sketch10
hole7.ThreadType = "None"
hole7.Diameter = Q("0.5 in")
hole7.DepthType = "ThroughAll"

doc.recompute()
